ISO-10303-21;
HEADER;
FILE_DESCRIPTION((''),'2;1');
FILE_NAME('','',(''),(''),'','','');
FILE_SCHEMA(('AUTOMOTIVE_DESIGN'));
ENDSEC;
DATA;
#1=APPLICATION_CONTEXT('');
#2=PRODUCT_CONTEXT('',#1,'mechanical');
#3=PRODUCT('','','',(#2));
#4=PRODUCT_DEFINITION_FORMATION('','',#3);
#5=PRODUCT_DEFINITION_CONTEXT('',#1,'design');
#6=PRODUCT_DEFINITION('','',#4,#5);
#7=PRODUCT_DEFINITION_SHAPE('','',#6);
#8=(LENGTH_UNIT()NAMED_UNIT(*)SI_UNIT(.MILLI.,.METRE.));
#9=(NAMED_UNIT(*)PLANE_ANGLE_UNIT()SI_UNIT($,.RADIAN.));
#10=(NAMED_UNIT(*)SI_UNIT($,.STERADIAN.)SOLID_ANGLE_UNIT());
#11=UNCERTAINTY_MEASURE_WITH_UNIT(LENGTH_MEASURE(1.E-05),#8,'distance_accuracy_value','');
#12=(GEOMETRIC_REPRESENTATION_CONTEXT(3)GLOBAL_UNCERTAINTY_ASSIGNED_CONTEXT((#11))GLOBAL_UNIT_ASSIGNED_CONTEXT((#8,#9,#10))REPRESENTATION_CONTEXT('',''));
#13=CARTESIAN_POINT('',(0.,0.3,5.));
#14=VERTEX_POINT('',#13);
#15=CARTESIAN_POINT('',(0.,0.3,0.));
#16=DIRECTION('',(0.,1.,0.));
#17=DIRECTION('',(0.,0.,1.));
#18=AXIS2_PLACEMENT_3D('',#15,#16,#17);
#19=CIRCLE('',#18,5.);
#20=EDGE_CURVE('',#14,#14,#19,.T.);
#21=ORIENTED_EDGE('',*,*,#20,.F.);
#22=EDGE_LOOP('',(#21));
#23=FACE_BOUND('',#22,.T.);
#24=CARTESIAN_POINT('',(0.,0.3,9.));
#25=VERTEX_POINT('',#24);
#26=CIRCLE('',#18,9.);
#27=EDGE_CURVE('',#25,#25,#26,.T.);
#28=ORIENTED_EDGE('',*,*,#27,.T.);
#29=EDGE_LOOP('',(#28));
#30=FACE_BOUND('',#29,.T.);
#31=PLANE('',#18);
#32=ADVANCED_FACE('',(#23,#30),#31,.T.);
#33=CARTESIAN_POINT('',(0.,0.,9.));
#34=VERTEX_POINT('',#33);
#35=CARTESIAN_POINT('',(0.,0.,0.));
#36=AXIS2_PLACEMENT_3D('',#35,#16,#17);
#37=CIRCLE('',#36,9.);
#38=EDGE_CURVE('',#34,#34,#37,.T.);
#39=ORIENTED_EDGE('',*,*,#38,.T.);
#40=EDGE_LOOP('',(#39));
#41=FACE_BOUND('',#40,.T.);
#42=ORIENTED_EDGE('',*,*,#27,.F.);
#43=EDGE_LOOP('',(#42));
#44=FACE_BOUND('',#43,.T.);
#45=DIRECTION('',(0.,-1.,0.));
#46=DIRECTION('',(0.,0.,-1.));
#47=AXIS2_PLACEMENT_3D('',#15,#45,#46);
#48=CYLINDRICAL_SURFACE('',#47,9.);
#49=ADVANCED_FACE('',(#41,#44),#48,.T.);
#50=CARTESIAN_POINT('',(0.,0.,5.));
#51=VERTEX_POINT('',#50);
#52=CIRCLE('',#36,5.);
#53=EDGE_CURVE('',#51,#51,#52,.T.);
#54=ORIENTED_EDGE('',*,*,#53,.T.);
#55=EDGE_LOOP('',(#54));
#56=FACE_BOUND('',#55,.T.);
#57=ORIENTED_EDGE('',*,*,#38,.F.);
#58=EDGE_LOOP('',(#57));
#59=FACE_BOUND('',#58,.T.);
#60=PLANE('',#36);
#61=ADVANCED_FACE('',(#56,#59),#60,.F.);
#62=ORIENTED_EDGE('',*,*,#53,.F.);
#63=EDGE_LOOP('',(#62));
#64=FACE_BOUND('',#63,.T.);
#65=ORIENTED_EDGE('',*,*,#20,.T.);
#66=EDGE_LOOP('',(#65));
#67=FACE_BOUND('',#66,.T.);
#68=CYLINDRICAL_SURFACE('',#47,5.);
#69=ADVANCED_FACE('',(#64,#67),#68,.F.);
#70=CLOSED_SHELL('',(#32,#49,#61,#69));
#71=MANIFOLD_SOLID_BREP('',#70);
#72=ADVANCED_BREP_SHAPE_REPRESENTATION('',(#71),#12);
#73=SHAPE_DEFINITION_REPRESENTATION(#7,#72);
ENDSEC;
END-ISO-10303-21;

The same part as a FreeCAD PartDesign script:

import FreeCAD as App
import Part
import Sketcher
from FreeCAD import Vector
Q = App.Units.Quantity

doc = App.newDocument("Part")
body = doc.addObject("PartDesign::Body", "Body")

# Sketch on XZ plane
sketch1 = body.newObject("Sketcher::SketchObject", "Sketch")
sketch1.AttachmentSupport = (doc.getObject("XZ_Plane"), [""])
sketch1.MapMode = "FlatFace"
sketch1.addGeometry([
    Part.Circle(Vector(0, 0, 0), Vector(0, 0, 1), 9),
    Part.Circle(Vector(0, 0, 0), Vector(0, 0, 1), 5),
], False)
sketch1.addConstraint([
    Sketcher.Constraint("Coincident", 0, 3, -1, 1),
    Sketcher.Constraint("Coincident", 1, 3, -1, 1),
    Sketcher.Constraint("Diameter", 0, Q("18 mm")),
    Sketcher.Constraint("Diameter", 1, Q("10 mm")),
])
pad1 = body.newObject("PartDesign::Pad", "Pad")
pad1.Profile = sketch1
pad1.Length = 0.3
pad1.Reversed = True

doc.recompute()
